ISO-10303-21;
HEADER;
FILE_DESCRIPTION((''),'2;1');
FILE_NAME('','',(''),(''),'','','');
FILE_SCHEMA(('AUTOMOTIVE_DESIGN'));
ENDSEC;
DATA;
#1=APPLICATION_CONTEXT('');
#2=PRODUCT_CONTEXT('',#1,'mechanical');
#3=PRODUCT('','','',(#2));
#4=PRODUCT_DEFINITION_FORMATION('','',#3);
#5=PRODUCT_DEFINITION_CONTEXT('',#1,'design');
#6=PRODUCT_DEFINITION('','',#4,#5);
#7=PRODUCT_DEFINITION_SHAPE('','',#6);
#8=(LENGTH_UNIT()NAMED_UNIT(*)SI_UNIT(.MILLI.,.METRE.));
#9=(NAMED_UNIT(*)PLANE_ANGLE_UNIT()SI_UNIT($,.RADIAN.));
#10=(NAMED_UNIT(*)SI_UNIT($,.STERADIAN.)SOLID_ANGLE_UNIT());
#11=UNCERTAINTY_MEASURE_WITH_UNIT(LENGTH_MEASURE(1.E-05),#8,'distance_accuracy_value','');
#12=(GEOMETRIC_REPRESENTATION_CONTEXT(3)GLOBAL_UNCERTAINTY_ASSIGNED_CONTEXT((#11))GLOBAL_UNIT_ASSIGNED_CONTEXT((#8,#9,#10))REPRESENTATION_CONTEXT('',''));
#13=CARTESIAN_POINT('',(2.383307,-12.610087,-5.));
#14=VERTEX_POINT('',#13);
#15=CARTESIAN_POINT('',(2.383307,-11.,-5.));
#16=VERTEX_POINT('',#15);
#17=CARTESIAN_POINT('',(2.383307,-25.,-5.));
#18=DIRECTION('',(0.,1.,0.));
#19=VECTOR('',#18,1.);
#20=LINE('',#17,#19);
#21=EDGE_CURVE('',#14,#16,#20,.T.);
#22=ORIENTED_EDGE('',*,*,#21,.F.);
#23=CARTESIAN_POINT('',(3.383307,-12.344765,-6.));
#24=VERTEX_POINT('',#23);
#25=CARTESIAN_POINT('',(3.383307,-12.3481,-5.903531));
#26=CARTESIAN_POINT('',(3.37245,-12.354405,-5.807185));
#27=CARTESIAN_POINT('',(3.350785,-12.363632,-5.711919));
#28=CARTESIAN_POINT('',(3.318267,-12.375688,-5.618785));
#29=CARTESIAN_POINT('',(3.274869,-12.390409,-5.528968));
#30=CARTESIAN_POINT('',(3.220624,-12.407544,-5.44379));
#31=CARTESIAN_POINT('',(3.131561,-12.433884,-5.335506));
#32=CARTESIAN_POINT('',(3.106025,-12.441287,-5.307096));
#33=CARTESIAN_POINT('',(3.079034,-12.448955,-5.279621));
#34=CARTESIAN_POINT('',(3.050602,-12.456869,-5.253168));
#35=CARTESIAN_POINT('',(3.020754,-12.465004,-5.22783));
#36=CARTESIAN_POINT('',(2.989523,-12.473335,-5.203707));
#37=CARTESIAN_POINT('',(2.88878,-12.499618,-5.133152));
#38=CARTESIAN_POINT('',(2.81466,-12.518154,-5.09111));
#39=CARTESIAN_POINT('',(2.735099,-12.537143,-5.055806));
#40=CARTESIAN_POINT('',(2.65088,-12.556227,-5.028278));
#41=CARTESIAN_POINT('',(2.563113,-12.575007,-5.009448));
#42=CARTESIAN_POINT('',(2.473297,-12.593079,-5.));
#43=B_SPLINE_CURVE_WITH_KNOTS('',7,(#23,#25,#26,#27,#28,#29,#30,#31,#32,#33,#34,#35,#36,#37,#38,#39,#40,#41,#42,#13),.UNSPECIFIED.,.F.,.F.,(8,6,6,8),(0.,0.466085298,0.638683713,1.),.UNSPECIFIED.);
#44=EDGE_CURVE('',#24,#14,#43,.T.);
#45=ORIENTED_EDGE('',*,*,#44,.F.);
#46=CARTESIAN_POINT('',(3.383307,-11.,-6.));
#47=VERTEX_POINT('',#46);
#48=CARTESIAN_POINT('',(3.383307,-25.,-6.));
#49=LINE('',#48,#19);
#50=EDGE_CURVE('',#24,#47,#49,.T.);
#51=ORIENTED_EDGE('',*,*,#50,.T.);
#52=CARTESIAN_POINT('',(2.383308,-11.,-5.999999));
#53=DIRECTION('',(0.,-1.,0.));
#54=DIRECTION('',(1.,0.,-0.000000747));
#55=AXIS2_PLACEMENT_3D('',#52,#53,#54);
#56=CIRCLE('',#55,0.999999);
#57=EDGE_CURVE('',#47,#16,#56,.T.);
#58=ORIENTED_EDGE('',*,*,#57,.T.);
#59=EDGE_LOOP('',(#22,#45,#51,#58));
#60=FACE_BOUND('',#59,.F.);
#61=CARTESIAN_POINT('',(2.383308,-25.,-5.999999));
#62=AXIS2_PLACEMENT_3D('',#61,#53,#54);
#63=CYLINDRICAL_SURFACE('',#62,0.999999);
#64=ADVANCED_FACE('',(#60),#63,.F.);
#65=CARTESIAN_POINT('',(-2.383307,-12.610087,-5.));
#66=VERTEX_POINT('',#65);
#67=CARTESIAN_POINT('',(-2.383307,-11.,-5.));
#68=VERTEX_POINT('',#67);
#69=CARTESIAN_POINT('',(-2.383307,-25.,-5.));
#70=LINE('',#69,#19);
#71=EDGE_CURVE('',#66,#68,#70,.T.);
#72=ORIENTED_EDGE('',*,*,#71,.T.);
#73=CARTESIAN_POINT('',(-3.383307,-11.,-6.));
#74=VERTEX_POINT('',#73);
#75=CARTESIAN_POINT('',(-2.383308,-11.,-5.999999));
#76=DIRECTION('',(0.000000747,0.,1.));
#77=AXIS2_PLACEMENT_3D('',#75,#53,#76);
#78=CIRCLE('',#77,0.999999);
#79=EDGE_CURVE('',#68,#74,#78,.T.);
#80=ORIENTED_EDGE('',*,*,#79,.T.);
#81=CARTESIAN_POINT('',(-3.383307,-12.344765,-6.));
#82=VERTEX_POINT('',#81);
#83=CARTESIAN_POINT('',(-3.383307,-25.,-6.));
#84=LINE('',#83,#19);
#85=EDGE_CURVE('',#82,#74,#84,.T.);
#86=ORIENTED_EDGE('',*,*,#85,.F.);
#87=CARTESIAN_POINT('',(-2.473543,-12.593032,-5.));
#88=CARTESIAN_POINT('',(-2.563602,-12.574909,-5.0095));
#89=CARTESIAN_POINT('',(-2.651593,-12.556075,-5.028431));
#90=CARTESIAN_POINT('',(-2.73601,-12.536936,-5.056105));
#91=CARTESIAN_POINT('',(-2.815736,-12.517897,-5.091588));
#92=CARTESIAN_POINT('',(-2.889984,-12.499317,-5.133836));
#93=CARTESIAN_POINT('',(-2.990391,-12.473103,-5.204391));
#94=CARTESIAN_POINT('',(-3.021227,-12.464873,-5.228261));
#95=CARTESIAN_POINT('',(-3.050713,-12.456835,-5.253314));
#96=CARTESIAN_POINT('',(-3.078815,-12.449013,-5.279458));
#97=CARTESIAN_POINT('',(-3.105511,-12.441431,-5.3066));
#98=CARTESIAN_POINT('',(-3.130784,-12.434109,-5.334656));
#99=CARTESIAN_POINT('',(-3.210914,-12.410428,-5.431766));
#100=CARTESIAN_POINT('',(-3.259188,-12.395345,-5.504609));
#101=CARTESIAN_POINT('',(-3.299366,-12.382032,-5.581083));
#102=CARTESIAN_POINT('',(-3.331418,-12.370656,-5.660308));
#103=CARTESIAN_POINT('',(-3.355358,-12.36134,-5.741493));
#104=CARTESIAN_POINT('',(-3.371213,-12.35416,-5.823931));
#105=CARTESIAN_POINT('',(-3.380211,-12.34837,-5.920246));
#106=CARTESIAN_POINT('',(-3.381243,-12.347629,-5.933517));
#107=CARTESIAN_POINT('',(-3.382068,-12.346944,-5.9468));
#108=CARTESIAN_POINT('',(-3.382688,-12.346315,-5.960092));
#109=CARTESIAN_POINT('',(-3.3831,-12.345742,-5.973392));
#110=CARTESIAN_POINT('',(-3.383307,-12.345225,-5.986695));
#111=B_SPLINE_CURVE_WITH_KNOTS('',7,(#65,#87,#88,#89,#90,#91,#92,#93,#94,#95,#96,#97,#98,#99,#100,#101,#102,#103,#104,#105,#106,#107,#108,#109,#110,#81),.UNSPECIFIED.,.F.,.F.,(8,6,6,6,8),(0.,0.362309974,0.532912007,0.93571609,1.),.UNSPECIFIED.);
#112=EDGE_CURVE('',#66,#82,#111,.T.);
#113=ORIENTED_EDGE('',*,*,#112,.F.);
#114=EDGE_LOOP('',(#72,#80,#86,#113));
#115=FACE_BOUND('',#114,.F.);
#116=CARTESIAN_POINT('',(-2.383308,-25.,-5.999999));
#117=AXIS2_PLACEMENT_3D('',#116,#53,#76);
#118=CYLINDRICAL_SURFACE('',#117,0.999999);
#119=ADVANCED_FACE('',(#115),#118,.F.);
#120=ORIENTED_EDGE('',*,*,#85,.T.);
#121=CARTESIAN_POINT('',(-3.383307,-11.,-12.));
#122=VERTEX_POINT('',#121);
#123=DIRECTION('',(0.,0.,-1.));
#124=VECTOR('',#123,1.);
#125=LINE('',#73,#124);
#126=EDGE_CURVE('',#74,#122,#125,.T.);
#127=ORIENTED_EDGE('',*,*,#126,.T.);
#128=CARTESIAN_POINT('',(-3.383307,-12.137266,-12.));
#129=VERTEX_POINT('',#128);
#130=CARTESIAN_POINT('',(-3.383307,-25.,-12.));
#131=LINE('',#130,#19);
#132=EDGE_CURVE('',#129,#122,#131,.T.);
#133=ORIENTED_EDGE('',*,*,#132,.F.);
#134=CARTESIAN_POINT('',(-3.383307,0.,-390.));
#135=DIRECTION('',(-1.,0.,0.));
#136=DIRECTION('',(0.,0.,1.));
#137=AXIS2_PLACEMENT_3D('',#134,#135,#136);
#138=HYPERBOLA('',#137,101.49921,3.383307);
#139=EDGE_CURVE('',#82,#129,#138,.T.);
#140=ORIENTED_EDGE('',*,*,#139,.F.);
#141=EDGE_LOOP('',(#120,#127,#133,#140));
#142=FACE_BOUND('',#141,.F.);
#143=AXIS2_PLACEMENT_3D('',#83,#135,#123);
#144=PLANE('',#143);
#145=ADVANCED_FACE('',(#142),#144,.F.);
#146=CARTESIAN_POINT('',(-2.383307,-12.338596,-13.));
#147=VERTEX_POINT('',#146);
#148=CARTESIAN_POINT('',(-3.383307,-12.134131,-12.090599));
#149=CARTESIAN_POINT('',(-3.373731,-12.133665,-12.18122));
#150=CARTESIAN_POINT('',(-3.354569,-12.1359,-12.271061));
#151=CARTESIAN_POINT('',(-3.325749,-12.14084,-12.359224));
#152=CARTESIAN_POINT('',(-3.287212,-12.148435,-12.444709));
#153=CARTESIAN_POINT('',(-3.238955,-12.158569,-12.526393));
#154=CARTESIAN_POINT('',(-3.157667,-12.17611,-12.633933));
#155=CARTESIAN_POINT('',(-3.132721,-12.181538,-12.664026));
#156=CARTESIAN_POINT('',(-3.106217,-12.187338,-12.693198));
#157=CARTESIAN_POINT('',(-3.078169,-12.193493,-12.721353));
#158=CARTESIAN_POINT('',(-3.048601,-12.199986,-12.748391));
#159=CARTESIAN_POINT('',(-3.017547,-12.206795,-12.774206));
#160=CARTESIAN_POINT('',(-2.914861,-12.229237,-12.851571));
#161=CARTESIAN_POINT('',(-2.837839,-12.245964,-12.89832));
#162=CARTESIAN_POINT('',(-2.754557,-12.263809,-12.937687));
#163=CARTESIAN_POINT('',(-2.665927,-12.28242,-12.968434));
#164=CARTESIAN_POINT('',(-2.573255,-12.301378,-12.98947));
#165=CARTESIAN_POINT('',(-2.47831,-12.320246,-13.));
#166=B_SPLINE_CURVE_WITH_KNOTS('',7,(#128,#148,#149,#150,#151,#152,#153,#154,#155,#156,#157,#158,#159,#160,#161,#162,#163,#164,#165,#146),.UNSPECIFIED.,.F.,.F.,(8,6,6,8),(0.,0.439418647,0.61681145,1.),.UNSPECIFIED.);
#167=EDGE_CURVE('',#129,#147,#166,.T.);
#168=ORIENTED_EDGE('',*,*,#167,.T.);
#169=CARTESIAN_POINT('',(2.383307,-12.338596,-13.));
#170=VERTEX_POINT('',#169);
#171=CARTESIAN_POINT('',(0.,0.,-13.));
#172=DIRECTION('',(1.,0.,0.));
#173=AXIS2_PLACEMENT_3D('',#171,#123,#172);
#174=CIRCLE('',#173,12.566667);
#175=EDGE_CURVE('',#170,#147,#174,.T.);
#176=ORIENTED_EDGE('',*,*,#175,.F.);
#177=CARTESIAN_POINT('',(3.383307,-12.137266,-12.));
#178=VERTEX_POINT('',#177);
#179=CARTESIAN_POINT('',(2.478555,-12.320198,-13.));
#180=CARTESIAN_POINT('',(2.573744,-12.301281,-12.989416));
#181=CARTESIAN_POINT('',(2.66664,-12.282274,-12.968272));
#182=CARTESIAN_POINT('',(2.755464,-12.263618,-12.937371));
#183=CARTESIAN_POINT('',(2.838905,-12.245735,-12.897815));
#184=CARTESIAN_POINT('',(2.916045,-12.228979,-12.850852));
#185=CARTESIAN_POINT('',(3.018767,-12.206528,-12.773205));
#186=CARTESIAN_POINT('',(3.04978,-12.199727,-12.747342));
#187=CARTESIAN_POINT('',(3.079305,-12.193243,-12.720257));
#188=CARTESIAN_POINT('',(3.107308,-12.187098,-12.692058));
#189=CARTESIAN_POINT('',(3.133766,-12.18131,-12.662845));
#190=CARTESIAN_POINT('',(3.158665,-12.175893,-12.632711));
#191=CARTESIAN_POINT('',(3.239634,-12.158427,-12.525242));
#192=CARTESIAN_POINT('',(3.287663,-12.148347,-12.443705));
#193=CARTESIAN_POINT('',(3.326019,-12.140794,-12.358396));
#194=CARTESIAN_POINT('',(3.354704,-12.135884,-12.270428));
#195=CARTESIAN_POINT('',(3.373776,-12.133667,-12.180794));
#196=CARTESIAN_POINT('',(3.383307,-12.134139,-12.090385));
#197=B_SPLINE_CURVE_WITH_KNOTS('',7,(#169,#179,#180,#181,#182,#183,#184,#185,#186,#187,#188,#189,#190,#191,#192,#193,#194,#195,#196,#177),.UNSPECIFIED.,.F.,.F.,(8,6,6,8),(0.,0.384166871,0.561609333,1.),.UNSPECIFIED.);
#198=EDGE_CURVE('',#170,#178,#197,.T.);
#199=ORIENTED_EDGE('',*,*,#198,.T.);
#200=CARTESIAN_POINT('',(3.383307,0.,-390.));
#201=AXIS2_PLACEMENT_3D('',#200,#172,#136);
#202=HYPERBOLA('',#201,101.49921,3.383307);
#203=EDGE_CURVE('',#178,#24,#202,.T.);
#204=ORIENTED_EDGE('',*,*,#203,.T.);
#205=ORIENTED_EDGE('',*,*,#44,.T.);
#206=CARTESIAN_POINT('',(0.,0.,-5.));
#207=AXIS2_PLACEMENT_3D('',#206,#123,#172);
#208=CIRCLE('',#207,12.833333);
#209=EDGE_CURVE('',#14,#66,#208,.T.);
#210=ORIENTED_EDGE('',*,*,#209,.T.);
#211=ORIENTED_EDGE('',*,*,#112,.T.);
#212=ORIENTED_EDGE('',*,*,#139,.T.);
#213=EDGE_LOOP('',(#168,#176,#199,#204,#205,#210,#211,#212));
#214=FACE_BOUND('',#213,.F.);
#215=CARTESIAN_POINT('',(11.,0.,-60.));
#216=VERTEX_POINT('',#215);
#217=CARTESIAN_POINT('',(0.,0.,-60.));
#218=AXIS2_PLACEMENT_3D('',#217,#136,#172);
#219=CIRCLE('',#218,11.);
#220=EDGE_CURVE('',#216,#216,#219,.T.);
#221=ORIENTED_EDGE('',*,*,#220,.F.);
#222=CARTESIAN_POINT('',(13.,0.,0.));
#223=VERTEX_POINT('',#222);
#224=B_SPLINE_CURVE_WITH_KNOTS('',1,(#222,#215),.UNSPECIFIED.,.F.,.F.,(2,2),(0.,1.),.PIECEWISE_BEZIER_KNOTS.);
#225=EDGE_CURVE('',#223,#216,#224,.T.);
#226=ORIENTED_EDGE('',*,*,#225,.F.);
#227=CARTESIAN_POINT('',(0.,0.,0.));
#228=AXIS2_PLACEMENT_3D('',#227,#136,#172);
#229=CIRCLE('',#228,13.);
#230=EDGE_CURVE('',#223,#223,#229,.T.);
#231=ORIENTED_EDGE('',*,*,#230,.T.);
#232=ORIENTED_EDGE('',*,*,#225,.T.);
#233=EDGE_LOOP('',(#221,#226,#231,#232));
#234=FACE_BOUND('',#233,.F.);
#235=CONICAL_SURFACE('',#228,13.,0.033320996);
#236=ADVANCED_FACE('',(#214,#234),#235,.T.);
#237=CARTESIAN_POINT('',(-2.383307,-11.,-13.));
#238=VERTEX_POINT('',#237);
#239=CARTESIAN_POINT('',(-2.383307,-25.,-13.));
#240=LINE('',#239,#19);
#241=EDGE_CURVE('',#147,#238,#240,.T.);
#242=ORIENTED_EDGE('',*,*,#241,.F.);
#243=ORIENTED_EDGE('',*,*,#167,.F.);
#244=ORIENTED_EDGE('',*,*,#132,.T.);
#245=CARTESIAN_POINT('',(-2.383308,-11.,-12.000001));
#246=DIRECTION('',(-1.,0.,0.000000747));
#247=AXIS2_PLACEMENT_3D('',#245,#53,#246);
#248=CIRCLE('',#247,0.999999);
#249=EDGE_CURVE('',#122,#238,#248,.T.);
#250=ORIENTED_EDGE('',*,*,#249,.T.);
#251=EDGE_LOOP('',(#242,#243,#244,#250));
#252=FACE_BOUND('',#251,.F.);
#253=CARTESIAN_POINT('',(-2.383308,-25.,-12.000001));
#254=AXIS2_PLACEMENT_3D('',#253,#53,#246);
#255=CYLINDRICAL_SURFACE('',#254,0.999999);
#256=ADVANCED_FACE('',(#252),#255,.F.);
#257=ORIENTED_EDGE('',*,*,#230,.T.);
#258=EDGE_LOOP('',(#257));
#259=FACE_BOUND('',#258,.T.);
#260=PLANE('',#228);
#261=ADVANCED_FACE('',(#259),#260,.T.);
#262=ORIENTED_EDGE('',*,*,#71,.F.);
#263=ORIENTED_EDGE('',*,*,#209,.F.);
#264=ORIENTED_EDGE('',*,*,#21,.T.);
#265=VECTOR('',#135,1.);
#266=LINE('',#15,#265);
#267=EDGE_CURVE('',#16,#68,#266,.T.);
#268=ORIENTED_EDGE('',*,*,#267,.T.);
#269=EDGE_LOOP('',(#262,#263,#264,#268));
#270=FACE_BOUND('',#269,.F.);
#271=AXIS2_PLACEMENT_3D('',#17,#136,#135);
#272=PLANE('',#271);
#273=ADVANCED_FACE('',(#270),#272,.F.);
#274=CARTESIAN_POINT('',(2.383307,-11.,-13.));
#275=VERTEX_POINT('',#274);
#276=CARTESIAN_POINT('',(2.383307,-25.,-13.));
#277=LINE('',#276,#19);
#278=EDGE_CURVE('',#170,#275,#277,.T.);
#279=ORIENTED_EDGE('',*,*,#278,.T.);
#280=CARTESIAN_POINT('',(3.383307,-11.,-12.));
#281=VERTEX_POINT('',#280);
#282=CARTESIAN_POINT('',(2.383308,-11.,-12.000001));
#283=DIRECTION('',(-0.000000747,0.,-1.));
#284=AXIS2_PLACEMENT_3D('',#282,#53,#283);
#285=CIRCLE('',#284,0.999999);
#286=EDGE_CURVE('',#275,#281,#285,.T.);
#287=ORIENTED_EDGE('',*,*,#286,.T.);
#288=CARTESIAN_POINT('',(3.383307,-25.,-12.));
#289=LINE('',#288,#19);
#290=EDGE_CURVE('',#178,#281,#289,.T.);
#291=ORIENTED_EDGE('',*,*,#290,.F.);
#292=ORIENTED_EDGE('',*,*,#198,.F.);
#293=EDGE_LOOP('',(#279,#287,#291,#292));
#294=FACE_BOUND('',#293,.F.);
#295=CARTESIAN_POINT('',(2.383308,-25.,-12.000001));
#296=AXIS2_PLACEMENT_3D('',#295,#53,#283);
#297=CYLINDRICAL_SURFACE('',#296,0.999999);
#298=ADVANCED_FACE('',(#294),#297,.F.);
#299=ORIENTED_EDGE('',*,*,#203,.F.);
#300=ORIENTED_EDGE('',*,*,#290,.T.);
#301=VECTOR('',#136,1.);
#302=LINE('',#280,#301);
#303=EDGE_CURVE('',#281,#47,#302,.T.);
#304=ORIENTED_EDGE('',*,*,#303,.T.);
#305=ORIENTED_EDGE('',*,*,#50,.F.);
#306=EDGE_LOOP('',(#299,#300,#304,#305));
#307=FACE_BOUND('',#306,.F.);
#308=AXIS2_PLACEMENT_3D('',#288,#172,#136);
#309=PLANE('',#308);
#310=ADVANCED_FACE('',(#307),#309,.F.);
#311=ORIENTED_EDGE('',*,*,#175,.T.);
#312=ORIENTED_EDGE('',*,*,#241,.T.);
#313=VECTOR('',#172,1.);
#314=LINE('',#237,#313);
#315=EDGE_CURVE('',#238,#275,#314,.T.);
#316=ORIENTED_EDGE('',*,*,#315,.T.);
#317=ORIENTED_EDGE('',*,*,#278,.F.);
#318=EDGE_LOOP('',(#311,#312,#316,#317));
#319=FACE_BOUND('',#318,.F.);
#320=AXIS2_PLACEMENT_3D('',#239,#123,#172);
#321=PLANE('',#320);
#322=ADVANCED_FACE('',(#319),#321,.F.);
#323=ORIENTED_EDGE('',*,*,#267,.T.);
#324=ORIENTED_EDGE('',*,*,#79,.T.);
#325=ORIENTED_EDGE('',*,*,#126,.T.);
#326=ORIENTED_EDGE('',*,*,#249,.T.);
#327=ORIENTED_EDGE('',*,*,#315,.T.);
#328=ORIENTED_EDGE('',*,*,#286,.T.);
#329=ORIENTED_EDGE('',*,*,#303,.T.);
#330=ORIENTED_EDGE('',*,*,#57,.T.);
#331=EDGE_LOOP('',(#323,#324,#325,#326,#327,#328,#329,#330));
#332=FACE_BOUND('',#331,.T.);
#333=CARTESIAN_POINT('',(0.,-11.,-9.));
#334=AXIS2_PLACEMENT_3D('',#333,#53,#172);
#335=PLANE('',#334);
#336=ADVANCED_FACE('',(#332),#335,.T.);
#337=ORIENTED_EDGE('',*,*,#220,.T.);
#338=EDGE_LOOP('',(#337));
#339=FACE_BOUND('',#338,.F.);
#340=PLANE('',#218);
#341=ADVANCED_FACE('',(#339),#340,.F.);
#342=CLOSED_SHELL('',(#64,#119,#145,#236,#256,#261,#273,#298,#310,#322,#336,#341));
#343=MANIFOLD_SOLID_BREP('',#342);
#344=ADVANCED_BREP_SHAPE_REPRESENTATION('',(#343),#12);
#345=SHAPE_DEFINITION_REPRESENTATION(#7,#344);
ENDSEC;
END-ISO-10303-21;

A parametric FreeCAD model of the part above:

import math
import FreeCAD as App
import Part
import Sketcher
Q = App.Units.Quantity

doc = App.newDocument("Part")
body = doc.addObject("PartDesign::Body", "Body")

# Sketch on XY plane
sketch1 = body.newObject("Sketcher::SketchObject", "Sketch")
sketch1.AttachmentSupport = (doc.getObject("XY_Plane"), [""])
sketch1.MapMode = "FlatFace"
sketch1.addGeometry(Part.Circle(App.Vector(0, 0, 0), App.Vector(0, 0, 1), 13), False)
sketch1.addConstraint([
    Sketcher.Constraint("Coincident", 0, 3, -1, 1),
    Sketcher.Constraint("Diameter", 0, Q("26 mm")),
])

# Sketch on XY plane
sketch2 = body.newObject("Sketcher::SketchObject", "Sketch001")
sketch2.AttachmentSupport = (doc.getObject("XY_Plane"), [""])
sketch2.MapMode = "FlatFace"
sketch2.AttachmentOffset = App.Placement(App.Vector(0, 0, -60), App.Rotation())
sketch2.addGeometry(Part.Circle(App.Vector(0, 0, 0), App.Vector(0, 0, 1), 11), False)
sketch2.addConstraint([
    Sketcher.Constraint("Coincident", 0, 3, -1, 1),
    Sketcher.Constraint("Diameter", 0, Q("22 mm")),
])

additiveloft = body.newObject("PartDesign::AdditiveLoft", "AdditiveLoft")
additiveloft.Profile = sketch1
additiveloft.Sections = [sketch2]

# Sketch on XZ plane
sketch3 = body.newObject("Sketcher::SketchObject", "Sketch002")
sketch3.AttachmentSupport = (doc.getObject("XZ_Plane"), [""])
sketch3.MapMode = "FlatFace"
sketch3.AttachmentOffset = App.Placement(App.Vector(0, 0, 25), App.Rotation())
sketch3.addGeometry([
    Part.ArcOfCircle(Part.Circle(App.Vector(-2.383308, -5.999999, 0), App.Vector(0, 0, 1), 0.999999), math.radians(89.999957), math.radians(180.000043)),  # 0
    Part.LineSegment(App.Vector(-3.383307, -6, 0), App.Vector(-3.383307, -12, 0)),  # 1
    Part.ArcOfCircle(Part.Circle(App.Vector(-2.383308, -12.000001, 0), App.Vector(0, 0, 1), 0.999999), math.radians(179.999957), math.radians(270.000043)),  # 2
    Part.LineSegment(App.Vector(-2.383307, -13, 0), App.Vector(2.383307, -13, 0)),  # 3
    Part.ArcOfCircle(Part.Circle(App.Vector(2.383308, -12.000001, 0), App.Vector(0, 0, 1), 0.999999), math.radians(-90.000043), math.radians(0.000043)),  # 4
    Part.LineSegment(App.Vector(3.383307, -12, 0), App.Vector(3.383307, -6, 0)),  # 5
    Part.ArcOfCircle(Part.Circle(App.Vector(2.383308, -5.999999, 0), App.Vector(0, 0, 1), 0.999999), math.radians(-0.000043), math.radians(90.000043)),  # 6
    Part.LineSegment(App.Vector(2.383307, -5, 0), App.Vector(-2.383307, -5, 0)),  # 7
], False)
sketch3.addConstraint([
    Sketcher.Constraint("Tangent", 0, 2, 1, 1),
    Sketcher.Constraint("Tangent", 1, 2, 2, 1),
    Sketcher.Constraint("Tangent", 2, 2, 3, 1),
    Sketcher.Constraint("Tangent", 3, 2, 4, 1),
    Sketcher.Constraint("Tangent", 4, 2, 5, 1),
    Sketcher.Constraint("Tangent", 5, 2, 6, 1),
    Sketcher.Constraint("Tangent", 6, 2, 7, 1),
    Sketcher.Constraint("Tangent", 7, 2, 0, 1),
    Sketcher.Constraint("Vertical", 1),
    Sketcher.Constraint("Horizontal", 3),
    Sketcher.Constraint("Vertical", 5),
    Sketcher.Constraint("Horizontal", 7),
    Sketcher.Constraint("Equal", 0, 2),
    Sketcher.Constraint("Equal", 2, 4),
    Sketcher.Constraint("Equal", 4, 6),
    Sketcher.Constraint("Radius", 0, Q("0.999999 mm")),
    Sketcher.Constraint("DistanceY", 1, 2, 1, 1, Q("6 mm")),
    Sketcher.Constraint("DistanceY", 0, 3, -1, 1, Q("5.999999 mm")),
    Sketcher.Constraint("DistanceX", 3, 1, 3, 2, Q("4.766614 mm")),
    Sketcher.Constraint("DistanceX", 0, 3, -1, 1, Q("2.383308 mm")),
])
pocket1 = body.newObject("PartDesign::Pocket", "Pocket")
pocket1.Profile = sketch3
pocket1.Length = 14

doc.recompute()
